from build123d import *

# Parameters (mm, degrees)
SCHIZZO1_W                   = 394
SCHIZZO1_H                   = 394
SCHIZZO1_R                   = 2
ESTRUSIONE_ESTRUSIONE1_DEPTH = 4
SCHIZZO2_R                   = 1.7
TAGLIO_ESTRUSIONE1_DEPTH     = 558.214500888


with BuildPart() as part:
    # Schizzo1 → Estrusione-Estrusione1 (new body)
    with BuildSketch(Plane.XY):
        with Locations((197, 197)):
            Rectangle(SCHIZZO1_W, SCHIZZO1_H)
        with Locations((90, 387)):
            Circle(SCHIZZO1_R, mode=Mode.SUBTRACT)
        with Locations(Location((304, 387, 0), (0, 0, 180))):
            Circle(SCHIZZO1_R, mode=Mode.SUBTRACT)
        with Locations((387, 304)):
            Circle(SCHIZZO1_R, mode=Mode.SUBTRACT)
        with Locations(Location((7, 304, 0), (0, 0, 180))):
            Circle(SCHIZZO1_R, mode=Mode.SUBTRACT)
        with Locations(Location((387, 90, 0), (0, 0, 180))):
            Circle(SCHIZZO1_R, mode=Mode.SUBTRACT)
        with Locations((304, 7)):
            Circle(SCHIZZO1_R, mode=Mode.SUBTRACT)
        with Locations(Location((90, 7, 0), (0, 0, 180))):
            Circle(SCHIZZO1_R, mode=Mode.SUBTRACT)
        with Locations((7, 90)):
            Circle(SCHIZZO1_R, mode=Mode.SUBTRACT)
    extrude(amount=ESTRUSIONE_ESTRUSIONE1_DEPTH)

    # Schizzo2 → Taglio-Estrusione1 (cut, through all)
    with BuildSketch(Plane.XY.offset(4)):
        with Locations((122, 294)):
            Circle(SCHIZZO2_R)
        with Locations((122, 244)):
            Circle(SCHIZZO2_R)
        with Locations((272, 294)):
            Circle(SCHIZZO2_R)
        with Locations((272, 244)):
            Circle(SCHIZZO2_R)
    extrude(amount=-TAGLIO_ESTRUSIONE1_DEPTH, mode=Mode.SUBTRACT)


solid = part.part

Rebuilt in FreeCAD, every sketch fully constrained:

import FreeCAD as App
import Part
import Sketcher


def add_polygon(sketch, points):
    """Adds a closed chain of lines whose ends are joined by coincident constraints."""
    first, n = sketch.GeometryCount, len(points)
    for a, b in zip(points, points[1:] + points[:1]):
        sketch.addGeometry(Part.LineSegment(App.Vector(*a, 0), App.Vector(*b, 0)), False)
    for i in range(n):
        sketch.addConstraint(Sketcher.Constraint("Coincident", first + i, 2, first + (i + 1) % n, 1))

doc = App.newDocument("Part")
body = doc.addObject("PartDesign::Body", "Body")

sketch1 = body.newObject("Sketcher::SketchObject", "Sketch")
sketch1.AttachmentSupport = (doc.getObject("XY_Plane"), [""])
sketch1.MapMode = "FlatFace"
add_polygon(sketch1, [(0, 394), (0, 0), (394, 0), (394, 394)])
sketch1.addGeometry(Part.Circle(App.Vector(90, 7, 0), App.Vector(0, 0, 1), 2), False)
sketch1.addGeometry(Part.Circle(App.Vector(7, 90, 0), App.Vector(0, 0, 1), 2), False)
sketch1.addGeometry(Part.Circle(App.Vector(304, 7, 0), App.Vector(0, 0, 1), 2), False)
sketch1.addGeometry(Part.Circle(App.Vector(387, 90, 0), App.Vector(0, 0, 1), 2), False)
sketch1.addGeometry(Part.Circle(App.Vector(7, 304, 0), App.Vector(0, 0, 1), 2), False)
sketch1.addGeometry(Part.Circle(App.Vector(90, 387, 0), App.Vector(0, 0, 1), 2), False)
sketch1.addGeometry(Part.Circle(App.Vector(387, 304, 0), App.Vector(0, 0, 1), 2), False)
sketch1.addGeometry(Part.Circle(App.Vector(304, 387, 0), App.Vector(0, 0, 1), 2), False)
sketch1.addConstraint(Sketcher.Constraint("Vertical", 0))
sketch1.addConstraint(Sketcher.Constraint("Horizontal", 1))
sketch1.addConstraint(Sketcher.Constraint("Vertical", 2))
sketch1.addConstraint(Sketcher.Constraint("Horizontal", 3))
sketch1.addConstraint(Sketcher.Constraint("Coincident", 0, 2, -1, 1))
sketch1.addConstraint(Sketcher.Constraint("Equal", 4, 5))
sketch1.addConstraint(Sketcher.Constraint("Equal", 5, 6))
sketch1.addConstraint(Sketcher.Constraint("Equal", 6, 7))
sketch1.addConstraint(Sketcher.Constraint("Equal", 7, 8))
sketch1.addConstraint(Sketcher.Constraint("Equal", 8, 9))
sketch1.addConstraint(Sketcher.Constraint("Equal", 9, 10))
sketch1.addConstraint(Sketcher.Constraint("Equal", 10, 11))
sketch1.addConstraint(Sketcher.Constraint("Horizontal", 4, 3, 6, 3))
sketch1.addConstraint(Sketcher.Constraint("Horizontal", 5, 3, 7, 3))
sketch1.addConstraint(Sketcher.Constraint("Horizontal", 8, 3, 10, 3))
sketch1.addConstraint(Sketcher.Constraint("Horizontal", 9, 3, 11, 3))
sketch1.addConstraint(Sketcher.Constraint("Vertical", 5, 3, 8, 3))
sketch1.addConstraint(Sketcher.Constraint("Vertical", 4, 3, 9, 3))
sketch1.addConstraint(Sketcher.Constraint("Vertical", 7, 3, 10, 3))
sketch1.addConstraint(Sketcher.Constraint("Vertical", 6, 3, 11, 3))
sketch1.addConstraint(Sketcher.Constraint("Equal", 3, 0))
sketch1.addConstraint(Sketcher.Constraint("Diameter", 4, 4.0))
sketch1.addConstraint(Sketcher.Constraint("DistanceX", 1, 1, 1, 2, 394.0))
sketch1.addConstraint(Sketcher.Constraint("DistanceX", -1, 1, 4, 3, 90.0))
sketch1.addConstraint(Sketcher.Constraint("DistanceY", -1, 1, 4, 3, 7.0))
sketch1.addConstraint(Sketcher.Constraint("DistanceX", -1, 1, 5, 3, 7.0))
sketch1.addConstraint(Sketcher.Constraint("DistanceY", -1, 1, 5, 3, 90.0))
sketch1.addConstraint(Sketcher.Constraint("DistanceX", -1, 1, 6, 3, 304.0))
sketch1.addConstraint(Sketcher.Constraint("DistanceX", -1, 1, 7, 3, 387.0))
sketch1.addConstraint(Sketcher.Constraint("DistanceY", -1, 1, 8, 3, 304.0))
sketch1.addConstraint(Sketcher.Constraint("DistanceY", -1, 1, 9, 3, 387.0))
pad1 = body.newObject("PartDesign::Pad", "Pad")
pad1.Profile = sketch1
pad1.Length = 4

sketch2 = body.newObject("Sketcher::SketchObject", "Sketch001")
sketch2.AttachmentSupport = (doc.getObject("XY_Plane"), [""])
sketch2.MapMode = "FlatFace"
sketch2.AttachmentOffset = App.Placement(App.Vector(0, 0, 4), App.Rotation())
sketch2.addGeometry(Part.Circle(App.Vector(122, 294, 0), App.Vector(0, 0, 1), 1.7), False)
sketch2.addGeometry(Part.Circle(App.Vector(122, 244, 0), App.Vector(0, 0, 1), 1.7), False)
sketch2.addGeometry(Part.Circle(App.Vector(272, 294, 0), App.Vector(0, 0, 1), 1.7), False)
sketch2.addGeometry(Part.Circle(App.Vector(272, 244, 0), App.Vector(0, 0, 1), 1.7), False)
sketch2.addConstraint(Sketcher.Constraint("Equal", 0, 1))
sketch2.addConstraint(Sketcher.Constraint("Equal", 1, 2))
sketch2.addConstraint(Sketcher.Constraint("Equal", 2, 3))
sketch2.addConstraint(Sketcher.Constraint("Horizontal", 0, 3, 2, 3))
sketch2.addConstraint(Sketcher.Constraint("Horizontal", 1, 3, 3, 3))
sketch2.addConstraint(Sketcher.Constraint("Vertical", 0, 3, 1, 3))
sketch2.addConstraint(Sketcher.Constraint("Vertical", 2, 3, 3, 3))
sketch2.addConstraint(Sketcher.Constraint("Diameter", 0, 3.4))
sketch2.addConstraint(Sketcher.Constraint("DistanceX", -1, 1, 0, 3, 122.0))
sketch2.addConstraint(Sketcher.Constraint("DistanceY", -1, 1, 0, 3, 294.0))
sketch2.addConstraint(Sketcher.Constraint("DistanceY", -1, 1, 1, 3, 244.0))
sketch2.addConstraint(Sketcher.Constraint("DistanceX", -1, 1, 2, 3, 272.0))
pocket1 = body.newObject("PartDesign::Pocket", "Pocket")
pocket1.Profile = sketch2
pocket1.Type = "ThroughAll"

doc.recompute()
